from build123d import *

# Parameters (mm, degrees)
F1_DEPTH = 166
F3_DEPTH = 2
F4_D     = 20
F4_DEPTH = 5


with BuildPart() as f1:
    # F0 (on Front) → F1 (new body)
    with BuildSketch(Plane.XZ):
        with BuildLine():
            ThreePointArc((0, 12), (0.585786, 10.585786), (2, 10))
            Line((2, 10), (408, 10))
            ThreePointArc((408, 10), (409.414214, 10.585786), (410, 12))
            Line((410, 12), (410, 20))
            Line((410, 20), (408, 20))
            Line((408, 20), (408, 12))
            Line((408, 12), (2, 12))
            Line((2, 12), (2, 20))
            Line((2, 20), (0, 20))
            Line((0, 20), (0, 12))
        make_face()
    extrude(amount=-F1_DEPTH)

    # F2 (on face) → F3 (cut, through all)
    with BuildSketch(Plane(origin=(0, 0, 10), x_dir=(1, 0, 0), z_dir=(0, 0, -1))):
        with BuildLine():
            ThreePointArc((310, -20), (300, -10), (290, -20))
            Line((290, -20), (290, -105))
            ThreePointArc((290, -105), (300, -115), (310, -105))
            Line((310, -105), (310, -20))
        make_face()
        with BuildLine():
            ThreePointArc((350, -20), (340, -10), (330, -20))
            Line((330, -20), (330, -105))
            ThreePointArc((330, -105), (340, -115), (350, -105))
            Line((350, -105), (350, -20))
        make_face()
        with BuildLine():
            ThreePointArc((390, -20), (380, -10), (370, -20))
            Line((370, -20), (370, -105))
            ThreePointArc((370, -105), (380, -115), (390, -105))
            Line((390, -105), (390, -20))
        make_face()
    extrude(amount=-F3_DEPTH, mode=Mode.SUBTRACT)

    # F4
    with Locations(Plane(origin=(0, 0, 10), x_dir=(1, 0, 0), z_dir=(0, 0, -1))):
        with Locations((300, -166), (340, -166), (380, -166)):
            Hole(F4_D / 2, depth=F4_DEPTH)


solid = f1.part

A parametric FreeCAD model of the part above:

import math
import FreeCAD as App
import Part
import Sketcher

doc = App.newDocument("Part")
body = doc.addObject("PartDesign::Body", "Body")

# Sketch on XZ plane
sketch1 = body.newObject("Sketcher::SketchObject", "Sketch")
sketch1.AttachmentSupport = (doc.getObject("XZ_Plane"), [""])
sketch1.MapMode = "FlatFace"
sketch1.addGeometry([
    Part.ArcOfCircle(Part.Circle(App.Vector(2, 12, 0), App.Vector(0, 0, 1), 2), math.radians(180), math.radians(270)),  # 0
    Part.LineSegment(App.Vector(2, 10, 0), App.Vector(408, 10, 0)),  # 1
    Part.ArcOfCircle(Part.Circle(App.Vector(408, 12, 0), App.Vector(0, 0, 1), 2), math.radians(-90), math.radians(0)),  # 2
    Part.LineSegment(App.Vector(410, 12, 0), App.Vector(410, 20, 0)),  # 3
    Part.LineSegment(App.Vector(410, 20, 0), App.Vector(408, 20, 0)),  # 4
    Part.LineSegment(App.Vector(408, 20, 0), App.Vector(408, 12, 0)),  # 5
    Part.LineSegment(App.Vector(408, 12, 0), App.Vector(2, 12, 0)),  # 6
    Part.LineSegment(App.Vector(2, 12, 0), App.Vector(2, 20, 0)),  # 7
    Part.LineSegment(App.Vector(2, 20, 0), App.Vector(0, 20, 0)),  # 8
    Part.LineSegment(App.Vector(0, 20, 0), App.Vector(0, 12, 0)),  # 9
], False)
sketch1.addConstraint([
    Sketcher.Constraint("Tangent", 0, 2, 1, 1),
    Sketcher.Constraint("Tangent", 1, 2, 2, 1),
    Sketcher.Constraint("Tangent", 2, 2, 3, 1),
    Sketcher.Constraint("Coincident", 3, 2, 4, 1),
    Sketcher.Constraint("Coincident", 4, 2, 5, 1),
    Sketcher.Constraint("Coincident", 5, 2, 6, 1),
    Sketcher.Constraint("Coincident", 6, 2, 7, 1),
    Sketcher.Constraint("Coincident", 7, 2, 8, 1),
    Sketcher.Constraint("Coincident", 8, 2, 9, 1),
    Sketcher.Constraint("Tangent", 9, 2, 0, 1),
    Sketcher.Constraint("Horizontal", 1),
    Sketcher.Constraint("Vertical", 3),
    Sketcher.Constraint("Horizontal", 4),
    Sketcher.Constraint("Vertical", 5),
    Sketcher.Constraint("Horizontal", 6),
    Sketcher.Constraint("Vertical", 7),
    Sketcher.Constraint("Horizontal", 8),
    Sketcher.Constraint("Vertical", 9),
    Sketcher.Constraint("Coincident", 5, 2, 2, 3),
    Sketcher.Constraint("Coincident", 6, 2, 0, 3),
    Sketcher.Constraint("PointOnObject", 8, 2, -2),
    Sketcher.Constraint("Horizontal", 4, 2, 7, 2),
    Sketcher.Constraint("Radius", 0, 1.999999),
    Sketcher.Constraint("DistanceX", 1, 1, 1, 2, 406.0),
    Sketcher.Constraint("DistanceY", 3, 1, 3, 2, 8.0),
    Sketcher.Constraint("DistanceY", -1, 1, 0, 3, 11.999999),
])
pad1 = body.newObject("PartDesign::Pad", "Pad")
pad1.Profile = sketch1
pad1.Length = 166
pad1.Reversed = True

# Sketch on XY plane
sketch2 = body.newObject("Sketcher::SketchObject", "Sketch001")
sketch2.AttachmentSupport = (doc.getObject("XY_Plane"), [""])
sketch2.MapMode = "FlatFace"
sketch2.AttachmentOffset = App.Placement(App.Vector(0, 0, 10), App.Rotation())
sketch2.addGeometry([
    Part.ArcOfCircle(Part.Circle(App.Vector(300, 20, 0), App.Vector(0, 0, 1), 10), math.radians(180), math.radians(360)),  # 0
    Part.LineSegment(App.Vector(290, 20, 0), App.Vector(290, 105, 0)),  # 1
    Part.ArcOfCircle(Part.Circle(App.Vector(300, 105, 0), App.Vector(0, 0, 1), 10), math.radians(0), math.radians(180)),  # 2
    Part.LineSegment(App.Vector(310, 105, 0), App.Vector(310, 20, 0)),  # 3
    Part.ArcOfCircle(Part.Circle(App.Vector(340, 20, 0), App.Vector(0, 0, 1), 10), math.radians(180), math.radians(360)),  # 4
    Part.LineSegment(App.Vector(330, 20, 0), App.Vector(330, 105, 0)),  # 5
    Part.ArcOfCircle(Part.Circle(App.Vector(340, 105, 0), App.Vector(0, 0, 1), 10), math.radians(0), math.radians(180)),  # 6
    Part.LineSegment(App.Vector(350, 105, 0), App.Vector(350, 20, 0)),  # 7
    Part.ArcOfCircle(Part.Circle(App.Vector(380, 20, 0), App.Vector(0, 0, 1), 10), math.radians(180), math.radians(360)),  # 8
    Part.LineSegment(App.Vector(370, 20, 0), App.Vector(370, 105, 0)),  # 9
    Part.ArcOfCircle(Part.Circle(App.Vector(380, 105, 0), App.Vector(0, 0, 1), 10), math.radians(0), math.radians(180)),  # 10
    Part.LineSegment(App.Vector(390, 105, 0), App.Vector(390, 20, 0)),  # 11
], False)
sketch2.addConstraint([
    Sketcher.Constraint("Tangent", 0, 1, 1, 1),
    Sketcher.Constraint("Tangent", 1, 2, 2, 2),
    Sketcher.Constraint("Tangent", 2, 1, 3, 1),
    Sketcher.Constraint("Tangent", 3, 2, 0, 2),
    Sketcher.Constraint("Tangent", 4, 1, 5, 1),
    Sketcher.Constraint("Tangent", 5, 2, 6, 2),
    Sketcher.Constraint("Tangent", 6, 1, 7, 1),
    Sketcher.Constraint("Tangent", 7, 2, 4, 2),
    Sketcher.Constraint("Tangent", 8, 1, 9, 1),
    Sketcher.Constraint("Tangent", 9, 2, 10, 2),
    Sketcher.Constraint("Tangent", 10, 1, 11, 1),
    Sketcher.Constraint("Tangent", 11, 2, 8, 2),
    Sketcher.Constraint("Vertical", 1),
    Sketcher.Constraint("Vertical", 3),
    Sketcher.Constraint("Vertical", 5),
    Sketcher.Constraint("Vertical", 7),
    Sketcher.Constraint("Vertical", 9),
    Sketcher.Constraint("Vertical", 11),
    Sketcher.Constraint("Equal", 2, 4),
    Sketcher.Constraint("Equal", 6, 8),
    Sketcher.Constraint("Horizontal", 0, 3, 4, 3),
    Sketcher.Constraint("Horizontal", 2, 3, 6, 3),
    Sketcher.Constraint("Horizontal", 4, 3, 8, 3),
    Sketcher.Constraint("Horizontal", 6, 3, 10, 3),
    Sketcher.Constraint("Radius", 0, 10.0),
    Sketcher.Constraint("DistanceY", 1, 1, 1, 2, 85.0),
    Sketcher.Constraint("DistanceX", -1, 1, 0, 3, 300.0),
    Sketcher.Constraint("DistanceY", -1, 1, 0, 3, 20.0),
    Sketcher.Constraint("DistanceX", -1, 1, 4, 3, 340.0),
    Sketcher.Constraint("DistanceX", -1, 1, 8, 3, 380.0),
])
pocket1 = body.newObject("PartDesign::Pocket", "Pocket")
pocket1.Profile = sketch2
pocket1.Type = "ThroughAll"
pocket1.Reversed = True

# Sketch on XY plane
sketch3 = body.newObject("Sketcher::SketchObject", "Sketch002")
sketch3.AttachmentSupport = (doc.getObject("XY_Plane"), [""])
sketch3.MapMode = "FlatFace"
sketch3.AttachmentOffset = App.Placement(App.Vector(0, 0, 10), App.Rotation())
sketch3.addGeometry([
    Part.Circle(App.Vector(300, 166, 0), App.Vector(0, 0, 1), 10),
    Part.Circle(App.Vector(340, 166, 0), App.Vector(0, 0, 1), 10),
    Part.Circle(App.Vector(380, 166, 0), App.Vector(0, 0, 1), 10),
], False)
sketch3.addConstraint([
    Sketcher.Constraint("Equal", 0, 1),
    Sketcher.Constraint("Equal", 1, 2),
    Sketcher.Constraint("Horizontal", 0, 3, 1, 3),
    Sketcher.Constraint("Horizontal", 1, 3, 2, 3),
    Sketcher.Constraint("Diameter", 0, 20.0),
    Sketcher.Constraint("DistanceX", -1, 1, 0, 3, 300.0),
    Sketcher.Constraint("DistanceY", -1, 1, 0, 3, 166.0),
    Sketcher.Constraint("DistanceX", -1, 1, 1, 3, 340.0),
    Sketcher.Constraint("DistanceX", -1, 1, 2, 3, 380.0),
])
doc.recompute()
hole = body.newObject("PartDesign::Hole", "Hole")
hole.Profile = sketch3
hole.ThreadType = "None"
hole.Diameter = 20
hole.DepthType = "Dimension"
hole.Depth = 5
hole.DrillPoint = "Flat"
hole.Reversed = True

doc.recompute()
